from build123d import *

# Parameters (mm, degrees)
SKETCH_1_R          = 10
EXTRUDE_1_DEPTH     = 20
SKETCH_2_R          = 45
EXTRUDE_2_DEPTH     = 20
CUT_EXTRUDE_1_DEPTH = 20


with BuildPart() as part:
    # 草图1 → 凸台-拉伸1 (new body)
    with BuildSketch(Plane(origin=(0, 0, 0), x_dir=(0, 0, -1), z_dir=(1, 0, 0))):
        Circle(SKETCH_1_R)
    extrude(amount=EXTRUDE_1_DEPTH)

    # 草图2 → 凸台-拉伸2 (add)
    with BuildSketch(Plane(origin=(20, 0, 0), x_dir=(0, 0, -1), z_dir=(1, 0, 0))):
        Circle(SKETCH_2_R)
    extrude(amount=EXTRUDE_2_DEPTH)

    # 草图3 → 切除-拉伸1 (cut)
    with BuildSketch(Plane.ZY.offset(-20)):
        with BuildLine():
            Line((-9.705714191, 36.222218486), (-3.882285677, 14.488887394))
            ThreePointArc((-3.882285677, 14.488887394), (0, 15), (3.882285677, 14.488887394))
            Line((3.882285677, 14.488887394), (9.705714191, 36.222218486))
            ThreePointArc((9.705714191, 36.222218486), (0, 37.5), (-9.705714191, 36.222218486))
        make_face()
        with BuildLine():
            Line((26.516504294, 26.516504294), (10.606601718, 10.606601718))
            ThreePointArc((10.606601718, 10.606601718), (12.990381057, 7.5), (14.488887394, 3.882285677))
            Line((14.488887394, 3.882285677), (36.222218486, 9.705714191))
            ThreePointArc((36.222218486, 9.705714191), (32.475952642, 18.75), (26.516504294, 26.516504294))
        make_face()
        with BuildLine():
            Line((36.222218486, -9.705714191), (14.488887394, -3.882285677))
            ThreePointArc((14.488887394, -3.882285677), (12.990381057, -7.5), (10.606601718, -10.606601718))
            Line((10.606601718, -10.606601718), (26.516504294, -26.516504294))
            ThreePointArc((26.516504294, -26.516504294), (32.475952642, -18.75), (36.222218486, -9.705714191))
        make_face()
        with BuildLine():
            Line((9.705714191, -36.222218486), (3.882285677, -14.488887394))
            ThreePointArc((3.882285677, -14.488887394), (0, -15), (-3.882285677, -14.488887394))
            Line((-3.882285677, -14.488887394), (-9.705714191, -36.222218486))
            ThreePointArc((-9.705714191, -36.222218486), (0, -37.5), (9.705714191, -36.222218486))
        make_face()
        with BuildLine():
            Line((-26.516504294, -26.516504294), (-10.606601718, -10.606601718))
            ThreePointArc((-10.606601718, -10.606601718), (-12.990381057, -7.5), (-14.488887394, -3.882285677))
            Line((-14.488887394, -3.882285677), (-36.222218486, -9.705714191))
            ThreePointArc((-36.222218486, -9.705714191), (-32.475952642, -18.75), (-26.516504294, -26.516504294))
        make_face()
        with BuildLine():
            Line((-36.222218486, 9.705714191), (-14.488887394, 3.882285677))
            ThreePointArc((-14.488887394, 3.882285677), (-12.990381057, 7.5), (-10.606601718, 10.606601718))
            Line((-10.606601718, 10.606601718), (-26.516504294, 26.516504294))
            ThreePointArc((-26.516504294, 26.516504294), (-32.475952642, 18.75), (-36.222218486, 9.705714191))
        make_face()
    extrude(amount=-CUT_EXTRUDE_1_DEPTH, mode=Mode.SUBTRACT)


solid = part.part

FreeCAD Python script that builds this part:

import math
import FreeCAD as App
import Part
import Sketcher
from FreeCAD import Vector
Q = App.Units.Quantity

doc = App.newDocument("Part")
params = doc.addObject("Spreadsheet::Sheet", "Params")
for row, (alias, value) in enumerate([
    ("sketch1_diameter", "20 mm"),
    ("pad1_length", "20 mm"),
    ("sketch2_diameter", "90 mm"),
    ("pad2_length", "20 mm"),
    ("sketch3_radius", "15 mm"),
    ("sketch3_radius2", "37.5 mm"),
    ("pocket1_length", "20 mm"),
], start=1):
    params.set(f"A{row}", alias)
    params.set(f"B{row}", "=" + value)
    params.setAlias(f"B{row}", alias)

body = doc.addObject("PartDesign::Body", "Body")

sketch1 = doc.addObject("Sketcher::SketchObject", "Sketch")
body.addObject(sketch1)
sketch1.AttachmentSupport = (doc.YZ_Plane, [""])
sketch1.MapMode = "FlatFace"
sketch1.addGeometry(Part.Circle(Vector(0, 0, 0), Vector(0, 0, 1), 10), False)
sketch1.addConstraint(Sketcher.Constraint("Coincident", 0, 3, -1, 1))
sketch1.addConstraint(Sketcher.Constraint("Diameter", 0, Q("20 mm")))
sketch1.setExpression("Constraints[1]", "Params.sketch1_diameter")
pad1 = doc.addObject("PartDesign::Pad", "Pad")
body.addObject(pad1)
pad1.Profile = sketch1
pad1.setExpression("Length", "Params.pad1_length")

sketch2 = doc.addObject("Sketcher::SketchObject", "Sketch001")
body.addObject(sketch2)
sketch2.AttachmentSupport = (doc.YZ_Plane, [""])
sketch2.MapMode = "FlatFace"
sketch2.AttachmentOffset = App.Placement(Vector(0, 0, 20), App.Rotation())
sketch2.addGeometry(Part.Circle(Vector(0, 0, 0), Vector(0, 0, 1), 45), False)
sketch2.addConstraint(Sketcher.Constraint("Coincident", 0, 3, -1, 1))
sketch2.addConstraint(Sketcher.Constraint("Diameter", 0, Q("90 mm")))
sketch2.setExpression("Constraints[1]", "Params.sketch2_diameter")
pad2 = doc.addObject("PartDesign::Pad", "Pad001")
body.addObject(pad2)
pad2.Profile = sketch2
pad2.setExpression("Length", "Params.pad2_length")

sketch3 = doc.addObject("Sketcher::SketchObject", "Sketch002")
body.addObject(sketch3)
sketch3.AttachmentSupport = (doc.YZ_Plane, [""])
sketch3.MapMode = "FlatFace"
sketch3.AttachmentOffset = App.Placement(Vector(0, 0, 20), App.Rotation())
sketch3.addGeometry(Part.LineSegment(Vector(36, -10, 0), Vector(14, -4, 0)), False)
sketch3.addGeometry(Part.ArcOfCircle(Part.Circle(Vector(0, 0, 0), Vector(0, 0, 1), 15), math.radians(-15), math.radians(15)), False)
sketch3.addGeometry(Part.LineSegment(Vector(14, 4, 0), Vector(36, 10, 0)), False)
sketch3.addGeometry(Part.ArcOfCircle(Part.Circle(Vector(0, 0, 0), Vector(0, 0, 1), 38), math.radians(-15), math.radians(15)), False)
sketch3.addGeometry(Part.LineSegment(Vector(27, 27, 0), Vector(11, 11, 0)), False)
sketch3.addGeometry(Part.ArcOfCircle(Part.Circle(Vector(0, 0, 0), Vector(0, 0, 1), 15), math.radians(45), math.radians(75)), False)
sketch3.addGeometry(Part.LineSegment(Vector(4, 14, 0), Vector(10, 36, 0)), False)
sketch3.addGeometry(Part.ArcOfCircle(Part.Circle(Vector(0, 0, 0), Vector(0, 0, 1), 37), math.radians(45), math.radians(75)), False)
sketch3.addGeometry(Part.LineSegment(Vector(-10, 36, 0), Vector(-4, 14, 0)), False)
sketch3.addGeometry(Part.ArcOfCircle(Part.Circle(Vector(0, 0, 0), Vector(0, 0, 1), 15), math.radians(105), math.radians(135)), False)
sketch3.addGeometry(Part.LineSegment(Vector(-11, 11, 0), Vector(-27, 27, 0)), False)
sketch3.addGeometry(Part.ArcOfCircle(Part.Circle(Vector(0, 0, 0), Vector(0, 0, 1), 37), math.radians(105), math.radians(135)), False)
sketch3.addGeometry(Part.LineSegment(Vector(-36, 10, 0), Vector(-14, 4, 0)), False)
sketch3.addGeometry(Part.ArcOfCircle(Part.Circle(Vector(0, 0, 0), Vector(0, 0, 1), 15), math.radians(165), math.radians(195)), False)
sketch3.addGeometry(Part.LineSegment(Vector(-14, -4, 0), Vector(-36, -10, 0)), False)
sketch3.addGeometry(Part.ArcOfCircle(Part.Circle(Vector(0, 0, 0), Vector(0, 0, 1), 38), math.radians(165), math.radians(195)), False)
sketch3.addGeometry(Part.LineSegment(Vector(-27, -27, 0), Vector(-11, -11, 0)), False)
sketch3.addGeometry(Part.ArcOfCircle(Part.Circle(Vector(0, 0, 0), Vector(0, 0, 1), 15), math.radians(-135), math.radians(-105)), False)
sketch3.addGeometry(Part.LineSegment(Vector(-4, -14, 0), Vector(-10, -36, 0)), False)
sketch3.addGeometry(Part.ArcOfCircle(Part.Circle(Vector(0, 0, 0), Vector(0, 0, 1), 37), math.radians(-135), math.radians(-105)), False)
sketch3.addGeometry(Part.LineSegment(Vector(10, -36, 0), Vector(4, -14, 0)), False)
sketch3.addGeometry(Part.ArcOfCircle(Part.Circle(Vector(0, 0, 0), Vector(0, 0, 1), 15), math.radians(-75), math.radians(-45)), False)
sketch3.addGeometry(Part.LineSegment(Vector(11, -11, 0), Vector(27, -27, 0)), False)
sketch3.addGeometry(Part.ArcOfCircle(Part.Circle(Vector(0, 0, 0), Vector(0, 0, 1), 37), math.radians(-75), math.radians(-45)), False)
sketch3.addConstraint(Sketcher.Constraint("Coincident", 0, 2, 1, 1))
sketch3.addConstraint(Sketcher.Constraint("Coincident", 1, 2, 2, 1))
sketch3.addConstraint(Sketcher.Constraint("Coincident", 2, 2, 3, 2))
sketch3.addConstraint(Sketcher.Constraint("Coincident", 3, 1, 0, 1))
sketch3.addConstraint(Sketcher.Constraint("Coincident", 4, 2, 5, 1))
sketch3.addConstraint(Sketcher.Constraint("Coincident", 5, 2, 6, 1))
sketch3.addConstraint(Sketcher.Constraint("Coincident", 6, 2, 7, 2))
sketch3.addConstraint(Sketcher.Constraint("Coincident", 7, 1, 4, 1))
sketch3.addConstraint(Sketcher.Constraint("Coincident", 8, 2, 9, 1))
sketch3.addConstraint(Sketcher.Constraint("Coincident", 9, 2, 10, 1))
sketch3.addConstraint(Sketcher.Constraint("Coincident", 10, 2, 11, 2))
sketch3.addConstraint(Sketcher.Constraint("Coincident", 11, 1, 8, 1))
sketch3.addConstraint(Sketcher.Constraint("Coincident", 12, 2, 13, 1))
sketch3.addConstraint(Sketcher.Constraint("Coincident", 13, 2, 14, 1))
sketch3.addConstraint(Sketcher.Constraint("Coincident", 14, 2, 15, 2))
sketch3.addConstraint(Sketcher.Constraint("Coincident", 15, 1, 12, 1))
sketch3.addConstraint(Sketcher.Constraint("Coincident", 16, 2, 17, 1))
sketch3.addConstraint(Sketcher.Constraint("Coincident", 17, 2, 18, 1))
sketch3.addConstraint(Sketcher.Constraint("Coincident", 18, 2, 19, 2))
sketch3.addConstraint(Sketcher.Constraint("Coincident", 19, 1, 16, 1))
sketch3.addConstraint(Sketcher.Constraint("Coincident", 20, 2, 21, 1))
sketch3.addConstraint(Sketcher.Constraint("Coincident", 21, 2, 22, 1))
sketch3.addConstraint(Sketcher.Constraint("Coincident", 22, 2, 23, 2))
sketch3.addConstraint(Sketcher.Constraint("Coincident", 23, 1, 20, 1))
sketch3.addConstraint(Sketcher.Constraint("Coincident", 1, 3, -1, 1))
sketch3.addConstraint(Sketcher.Constraint("Coincident", 3, 3, -1, 1))
sketch3.addConstraint(Sketcher.Constraint("Coincident", 5, 3, -1, 1))
sketch3.addConstraint(Sketcher.Constraint("Coincident", 7, 3, -1, 1))
sketch3.addConstraint(Sketcher.Constraint("Coincident", 9, 3, -1, 1))
sketch3.addConstraint(Sketcher.Constraint("Coincident", 11, 3, -1, 1))
sketch3.addConstraint(Sketcher.Constraint("Coincident", 13, 3, -1, 1))
sketch3.addConstraint(Sketcher.Constraint("Coincident", 15, 3, -1, 1))
sketch3.addConstraint(Sketcher.Constraint("Coincident", 17, 3, -1, 1))
sketch3.addConstraint(Sketcher.Constraint("Coincident", 19, 3, -1, 1))
sketch3.addConstraint(Sketcher.Constraint("Coincident", 21, 3, -1, 1))
sketch3.addConstraint(Sketcher.Constraint("Coincident", 23, 3, -1, 1))
sketch3.addConstraint(Sketcher.Constraint("Equal", 1, 5))
sketch3.addConstraint(Sketcher.Constraint("Equal", 3, 7))
sketch3.addConstraint(Sketcher.Constraint("Equal", 5, 9))
sketch3.addConstraint(Sketcher.Constraint("Equal", 7, 11))
sketch3.addConstraint(Sketcher.Constraint("Equal", 9, 13))
sketch3.addConstraint(Sketcher.Constraint("Equal", 11, 15))
sketch3.addConstraint(Sketcher.Constraint("Equal", 13, 17))
sketch3.addConstraint(Sketcher.Constraint("Equal", 15, 19))
sketch3.addConstraint(Sketcher.Constraint("Equal", 17, 21))
sketch3.addConstraint(Sketcher.Constraint("Equal", 19, 23))
sketch3.addConstraint(Sketcher.Constraint("Perpendicular", 0, 6))
sketch3.addConstraint(Sketcher.Constraint("Perpendicular", 2, 8))
sketch3.addConstraint(Sketcher.Constraint("Perpendicular", 4, 10))
sketch3.addConstraint(Sketcher.Constraint("Perpendicular", 6, 12))
sketch3.addConstraint(Sketcher.Constraint("Perpendicular", 8, 14))
sketch3.addConstraint(Sketcher.Constraint("Perpendicular", 10, 16))
sketch3.addConstraint(Sketcher.Constraint("Perpendicular", 12, 18))
sketch3.addConstraint(Sketcher.Constraint("Perpendicular", 14, 20))
sketch3.addConstraint(Sketcher.Constraint("Perpendicular", 16, 22))
sketch3.addConstraint(Sketcher.Constraint("Horizontal", 5, 2, 8, 2))
sketch3.addConstraint(Sketcher.Constraint("Horizontal", 4, 2, 9, 2))
sketch3.addConstraint(Sketcher.Constraint("Horizontal", 7, 1, 10, 2))
sketch3.addConstraint(Sketcher.Constraint("Horizontal", 6, 2, 11, 1))
sketch3.addConstraint(Sketcher.Constraint("Horizontal", 1, 2, 12, 2))
sketch3.addConstraint(Sketcher.Constraint("Horizontal", 0, 2, 13, 2))
sketch3.addConstraint(Sketcher.Constraint("Horizontal", 17, 2, 20, 2))
sketch3.addConstraint(Sketcher.Constraint("Horizontal", 16, 2, 21, 2))
sketch3.addConstraint(Sketcher.Constraint("Vertical", 0, 2, 1, 2))
sketch3.addConstraint(Sketcher.Constraint("Vertical", 9, 2, 16, 2))
sketch3.addConstraint(Sketcher.Constraint("Vertical", 8, 2, 17, 2))
sketch3.addConstraint(Sketcher.Constraint("Radius", 1, Q("15 mm")))
sketch3.addConstraint(Sketcher.Constraint("Radius", 3, Q("37.5 mm")))
sketch3.addConstraint(Sketcher.Constraint("Angle", 0, Q("165 deg")))
sketch3.addConstraint(Sketcher.Constraint("DistanceY", 0, 2, 2, 2, Q("13.588 mm")))
sketch3.addConstraint(Sketcher.Constraint("DistanceX", 11, 1, 5, 2, Q("13.588 mm")))
sketch3.addConstraint(Sketcher.Constraint("DistanceX", -1, 1, 4, 2, Q("10.606602 mm")))
sketch3.setExpression("Constraints[66]", "Params.sketch3_radius")
sketch3.setExpression("Constraints[67]", "Params.sketch3_radius2")
pocket1 = doc.addObject("PartDesign::Pocket", "Pocket")
body.addObject(pocket1)
pocket1.Profile = sketch3
pocket1.setExpression("Length", "Params.pocket1_length")
pocket1.Reversed = True

doc.recompute()
